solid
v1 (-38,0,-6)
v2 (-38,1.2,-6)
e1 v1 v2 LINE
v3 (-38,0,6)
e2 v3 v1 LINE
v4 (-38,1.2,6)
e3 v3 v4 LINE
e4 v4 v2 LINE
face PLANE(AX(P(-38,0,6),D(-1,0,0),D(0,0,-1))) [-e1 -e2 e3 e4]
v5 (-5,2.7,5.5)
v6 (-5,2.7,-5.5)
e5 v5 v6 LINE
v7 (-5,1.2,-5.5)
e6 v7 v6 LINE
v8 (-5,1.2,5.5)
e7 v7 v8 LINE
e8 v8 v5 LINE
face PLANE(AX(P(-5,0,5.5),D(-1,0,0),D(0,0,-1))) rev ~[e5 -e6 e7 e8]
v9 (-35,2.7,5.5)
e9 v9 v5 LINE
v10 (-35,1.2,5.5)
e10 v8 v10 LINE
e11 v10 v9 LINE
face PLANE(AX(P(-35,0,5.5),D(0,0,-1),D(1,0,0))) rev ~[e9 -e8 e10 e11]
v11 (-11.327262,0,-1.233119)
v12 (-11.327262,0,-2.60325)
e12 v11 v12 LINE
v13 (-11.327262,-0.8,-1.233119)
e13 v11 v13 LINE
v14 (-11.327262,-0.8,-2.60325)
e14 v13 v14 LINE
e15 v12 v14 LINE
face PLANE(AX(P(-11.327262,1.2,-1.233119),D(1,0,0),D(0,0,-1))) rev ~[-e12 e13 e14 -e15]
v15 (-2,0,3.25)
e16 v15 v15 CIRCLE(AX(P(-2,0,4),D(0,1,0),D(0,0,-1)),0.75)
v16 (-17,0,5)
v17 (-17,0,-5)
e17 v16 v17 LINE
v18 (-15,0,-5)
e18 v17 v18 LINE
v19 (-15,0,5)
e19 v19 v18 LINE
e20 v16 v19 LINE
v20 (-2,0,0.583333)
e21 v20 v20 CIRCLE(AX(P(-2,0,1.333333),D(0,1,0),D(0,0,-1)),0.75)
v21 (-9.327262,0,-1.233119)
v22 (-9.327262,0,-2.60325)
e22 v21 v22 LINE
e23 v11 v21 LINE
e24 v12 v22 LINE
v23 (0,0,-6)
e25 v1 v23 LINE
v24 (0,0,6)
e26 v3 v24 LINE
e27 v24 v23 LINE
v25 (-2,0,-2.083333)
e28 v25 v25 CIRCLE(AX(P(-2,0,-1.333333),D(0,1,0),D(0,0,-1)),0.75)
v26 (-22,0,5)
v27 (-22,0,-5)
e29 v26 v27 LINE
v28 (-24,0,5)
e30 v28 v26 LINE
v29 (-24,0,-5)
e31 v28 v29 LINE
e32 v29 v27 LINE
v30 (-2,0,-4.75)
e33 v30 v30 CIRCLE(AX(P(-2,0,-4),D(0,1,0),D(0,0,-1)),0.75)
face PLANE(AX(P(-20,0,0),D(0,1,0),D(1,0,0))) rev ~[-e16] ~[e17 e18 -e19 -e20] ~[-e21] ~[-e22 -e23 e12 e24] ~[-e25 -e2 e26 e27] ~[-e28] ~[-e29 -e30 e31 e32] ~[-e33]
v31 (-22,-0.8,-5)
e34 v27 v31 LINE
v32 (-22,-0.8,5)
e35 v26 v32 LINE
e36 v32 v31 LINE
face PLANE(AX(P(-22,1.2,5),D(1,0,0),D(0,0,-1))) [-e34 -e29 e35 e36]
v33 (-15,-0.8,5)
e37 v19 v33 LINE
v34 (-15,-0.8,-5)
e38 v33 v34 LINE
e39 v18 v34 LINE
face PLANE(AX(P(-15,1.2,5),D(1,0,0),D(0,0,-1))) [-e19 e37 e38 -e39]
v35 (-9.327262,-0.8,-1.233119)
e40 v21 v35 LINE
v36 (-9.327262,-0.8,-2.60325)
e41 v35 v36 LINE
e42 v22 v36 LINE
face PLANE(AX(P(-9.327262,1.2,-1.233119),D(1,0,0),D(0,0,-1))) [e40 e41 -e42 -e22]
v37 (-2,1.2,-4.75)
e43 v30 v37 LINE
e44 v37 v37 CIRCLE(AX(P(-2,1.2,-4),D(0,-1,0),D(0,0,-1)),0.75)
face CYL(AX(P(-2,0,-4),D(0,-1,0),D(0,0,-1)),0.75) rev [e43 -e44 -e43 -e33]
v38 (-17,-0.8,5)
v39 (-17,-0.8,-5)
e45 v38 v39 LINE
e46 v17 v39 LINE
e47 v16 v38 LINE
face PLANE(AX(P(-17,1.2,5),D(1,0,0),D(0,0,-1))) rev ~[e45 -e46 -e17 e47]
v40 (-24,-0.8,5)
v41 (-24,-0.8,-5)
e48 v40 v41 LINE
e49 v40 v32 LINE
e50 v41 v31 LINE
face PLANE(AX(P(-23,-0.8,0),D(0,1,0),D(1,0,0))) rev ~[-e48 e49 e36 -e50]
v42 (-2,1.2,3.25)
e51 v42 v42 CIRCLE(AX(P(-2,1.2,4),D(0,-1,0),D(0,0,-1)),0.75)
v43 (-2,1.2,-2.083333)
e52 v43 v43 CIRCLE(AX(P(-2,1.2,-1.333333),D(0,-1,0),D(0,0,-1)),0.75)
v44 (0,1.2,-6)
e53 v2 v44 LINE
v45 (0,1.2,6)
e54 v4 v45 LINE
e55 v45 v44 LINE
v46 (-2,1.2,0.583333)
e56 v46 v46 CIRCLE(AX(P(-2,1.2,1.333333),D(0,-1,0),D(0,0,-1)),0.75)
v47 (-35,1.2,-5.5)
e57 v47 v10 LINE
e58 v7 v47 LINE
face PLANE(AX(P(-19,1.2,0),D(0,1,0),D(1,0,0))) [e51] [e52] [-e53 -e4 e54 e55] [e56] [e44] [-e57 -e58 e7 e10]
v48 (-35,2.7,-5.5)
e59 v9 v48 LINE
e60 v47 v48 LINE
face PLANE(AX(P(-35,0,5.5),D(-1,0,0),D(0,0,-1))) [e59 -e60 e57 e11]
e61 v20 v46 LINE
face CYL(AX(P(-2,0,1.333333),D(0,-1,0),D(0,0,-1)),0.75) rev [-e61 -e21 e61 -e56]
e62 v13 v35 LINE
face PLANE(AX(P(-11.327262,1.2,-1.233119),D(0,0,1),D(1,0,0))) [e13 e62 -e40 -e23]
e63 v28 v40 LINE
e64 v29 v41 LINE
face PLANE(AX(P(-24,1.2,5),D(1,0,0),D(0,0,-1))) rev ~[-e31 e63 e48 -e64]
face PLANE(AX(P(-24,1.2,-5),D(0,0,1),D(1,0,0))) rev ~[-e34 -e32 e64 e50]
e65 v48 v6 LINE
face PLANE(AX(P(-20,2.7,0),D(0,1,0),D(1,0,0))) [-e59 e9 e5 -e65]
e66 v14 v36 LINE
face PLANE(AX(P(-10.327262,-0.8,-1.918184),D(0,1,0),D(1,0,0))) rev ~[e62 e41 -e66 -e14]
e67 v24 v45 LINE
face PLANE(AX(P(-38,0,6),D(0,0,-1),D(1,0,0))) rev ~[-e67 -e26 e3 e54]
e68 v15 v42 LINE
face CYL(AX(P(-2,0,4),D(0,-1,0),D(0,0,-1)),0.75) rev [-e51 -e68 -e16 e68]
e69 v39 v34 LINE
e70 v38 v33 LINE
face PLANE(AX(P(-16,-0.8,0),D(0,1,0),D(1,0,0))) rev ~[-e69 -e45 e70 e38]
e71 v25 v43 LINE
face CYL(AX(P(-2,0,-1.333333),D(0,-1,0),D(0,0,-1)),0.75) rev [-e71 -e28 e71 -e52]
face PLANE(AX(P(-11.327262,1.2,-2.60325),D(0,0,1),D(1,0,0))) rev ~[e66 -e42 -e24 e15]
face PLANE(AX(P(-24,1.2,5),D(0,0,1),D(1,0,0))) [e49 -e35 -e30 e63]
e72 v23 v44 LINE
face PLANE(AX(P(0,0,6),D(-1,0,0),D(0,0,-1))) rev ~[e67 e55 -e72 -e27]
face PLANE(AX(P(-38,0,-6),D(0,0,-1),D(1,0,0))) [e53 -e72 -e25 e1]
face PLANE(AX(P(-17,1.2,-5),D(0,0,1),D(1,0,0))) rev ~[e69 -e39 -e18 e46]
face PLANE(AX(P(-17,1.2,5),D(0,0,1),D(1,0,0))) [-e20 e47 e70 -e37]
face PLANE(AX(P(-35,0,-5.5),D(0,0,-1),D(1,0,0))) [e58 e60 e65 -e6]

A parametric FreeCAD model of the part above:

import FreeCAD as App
import Part
import Sketcher

V = App.Vector

doc = App.newDocument("Part")
body = doc.addObject("PartDesign::Body", "Body")

# Sketch on XZ plane
sketch1 = doc.addObject("Sketcher::SketchObject", "Sketch")
body.addObject(sketch1)
sketch1.AttachmentSupport = (doc.XZ_Plane, [""])
sketch1.MapMode = "FlatFace"
sketch1.addGeometry([
    Part.LineSegment(V(-38, -6, 0), V(-38, 6, 0)),
    Part.LineSegment(V(-38, 6, 0), V(0, 6, 0)),
    Part.LineSegment(V(0, 6, 0), V(0, -6, 0)),
    Part.LineSegment(V(0, -6, 0), V(-38, -6, 0)),
], False)
sketch1.addConstraint([
    Sketcher.Constraint("Coincident", 0, 2, 1, 1),
    Sketcher.Constraint("Coincident", 1, 2, 2, 1),
    Sketcher.Constraint("Coincident", 2, 2, 3, 1),
    Sketcher.Constraint("Coincident", 3, 2, 0, 1),
    Sketcher.Constraint("Vertical", 0),
    Sketcher.Constraint("Horizontal", 1),
    Sketcher.Constraint("Vertical", 2),
    Sketcher.Constraint("Horizontal", 3),
    Sketcher.Constraint("Symmetric", 1, 2, 2, 2, -1, 1),
    Sketcher.Constraint("DistanceX", 1, 1, 1, 2, 38.0),
    Sketcher.Constraint("DistanceY", 0, 1, 0, 2, 12.0),
])
pad1 = doc.addObject("PartDesign::Pad", "Pad")
body.addObject(pad1)
pad1.Profile = sketch1
pad1.Length = 1.2
pad1.Reversed = True

# Sketch on XZ plane
sketch2 = doc.addObject("Sketcher::SketchObject", "Sketch001")
body.addObject(sketch2)
sketch2.AttachmentSupport = (doc.XZ_Plane, [""])
sketch2.MapMode = "FlatFace"
sketch2.addGeometry([
    Part.LineSegment(V(-35, -6, 0), V(-35, 6, 0)),
    Part.LineSegment(V(-35, 6, 0), V(-5, 6, 0)),
    Part.LineSegment(V(-5, 6, 0), V(-5, -6, 0)),
    Part.LineSegment(V(-5, -6, 0), V(-35, -6, 0)),
], False)
sketch2.addConstraint([
    Sketcher.Constraint("Coincident", 0, 2, 1, 1),
    Sketcher.Constraint("Coincident", 1, 2, 2, 1),
    Sketcher.Constraint("Coincident", 2, 2, 3, 1),
    Sketcher.Constraint("Coincident", 3, 2, 0, 1),
    Sketcher.Constraint("Vertical", 0),
    Sketcher.Constraint("Horizontal", 1),
    Sketcher.Constraint("Vertical", 2),
    Sketcher.Constraint("Horizontal", 3),
    Sketcher.Constraint("DistanceX", 1, 1, 1, 2, 30.0),
    Sketcher.Constraint("DistanceY", 0, 1, 0, 2, 11.0),
    Sketcher.Constraint("DistanceX", 0, 2, -1, 1, 35.0),
    Sketcher.Constraint("DistanceY", -1, 1, 0, 2, 5.5),
])
pad2 = doc.addObject("PartDesign::Pad", "Pad001")
body.addObject(pad2)
pad2.Profile = sketch2
pad2.Length = 2.7
pad2.Reversed = True

# Sketch on XZ plane
sketch3 = doc.addObject("Sketcher::SketchObject", "Sketch002")
body.addObject(sketch3)
sketch3.AttachmentSupport = (doc.XZ_Plane, [""])
sketch3.MapMode = "FlatFace"
sketch3.addGeometry([
    Part.Circle(V(-2, -4, 0), V(0, 0, 1), 0.8),
    Part.Circle(V(-2, -1.3, 0), V(0, 0, 1), 0.8),
    Part.Circle(V(-2, 1.3, 0), V(0, 0, 1), 0.8),
    Part.Circle(V(-2, 4, 0), V(0, 0, 1), 0.8),
], False)
sketch3.addConstraint([
    Sketcher.Constraint("Equal", 0, 1),
    Sketcher.Constraint("Equal", 1, 2),
    Sketcher.Constraint("Equal", 2, 3),
    Sketcher.Constraint("Symmetric", 1, 3, 2, 3, -1),
    Sketcher.Constraint("Symmetric", 0, 3, 3, 3, -1),
    Sketcher.Constraint("Vertical", 0, 3, 1, 3),
    Sketcher.Constraint("Diameter", 0, 1.5),
    Sketcher.Constraint("DistanceX", 0, 3, -1, 1, 2.0),
    Sketcher.Constraint("DistanceY", 0, 3, -1, 1, 4.0),
    Sketcher.Constraint("DistanceY", 1, 3, -1, 1, 1.333333),
])
pocket1 = doc.addObject("PartDesign::Pocket", "Pocket")
body.addObject(pocket1)
pocket1.Profile = sketch3
pocket1.Type = "ThroughAll"

# Sketch on XZ plane
sketch4 = doc.addObject("Sketcher::SketchObject", "Sketch003")
body.addObject(sketch4)
sketch4.AttachmentSupport = (doc.XZ_Plane, [""])
sketch4.MapMode = "FlatFace"
sketch4.AttachmentOffset = App.Placement(V(0, 0, -1.2), App.Rotation())
sketch4.addGeometry([
    Part.LineSegment(V(-24, -5, 0), V(-24, 5, 0)),  # 0
    Part.LineSegment(V(-24, 5, 0), V(-22, 5, 0)),  # 1
    Part.LineSegment(V(-22, 5, 0), V(-22, -5, 0)),  # 2
    Part.LineSegment(V(-22, -5, 0), V(-24, -5, 0)),  # 3
    Part.LineSegment(V(-17, -5, 0), V(-17, 5, 0)),  # 4
    Part.LineSegment(V(-17, 5, 0), V(-15, 5, 0)),  # 5
    Part.LineSegment(V(-15, 5, 0), V(-15, -5, 0)),  # 6
    Part.LineSegment(V(-15, -5, 0), V(-17, -5, 0)),  # 7
    Part.LineSegment(V(-11.3, -2.6, 0), V(-11.3, -1.2, 0)),  # 8
    Part.LineSegment(V(-11.3, -1.2, 0), V(-9.3, -1.2, 0)),  # 9
    Part.LineSegment(V(-9.3, -1.2, 0), V(-9.3, -2.6, 0)),  # 10
    Part.LineSegment(V(-9.3, -2.6, 0), V(-11.3, -2.6, 0)),  # 11
], False)
sketch4.addConstraint([
    Sketcher.Constraint("Coincident", 0, 2, 1, 1),
    Sketcher.Constraint("Coincident", 1, 2, 2, 1),
    Sketcher.Constraint("Coincident", 2, 2, 3, 1),
    Sketcher.Constraint("Coincident", 3, 2, 0, 1),
    Sketcher.Constraint("Coincident", 4, 2, 5, 1),
    Sketcher.Constraint("Coincident", 5, 2, 6, 1),
    Sketcher.Constraint("Coincident", 6, 2, 7, 1),
    Sketcher.Constraint("Coincident", 7, 2, 4, 1),
    Sketcher.Constraint("Coincident", 8, 2, 9, 1),
    Sketcher.Constraint("Coincident", 9, 2, 10, 1),
    Sketcher.Constraint("Coincident", 10, 2, 11, 1),
    Sketcher.Constraint("Coincident", 11, 2, 8, 1),
    Sketcher.Constraint("Vertical", 0),
    Sketcher.Constraint("Horizontal", 1),
    Sketcher.Constraint("Vertical", 2),
    Sketcher.Constraint("Horizontal", 3),
    Sketcher.Constraint("Vertical", 4),
    Sketcher.Constraint("Horizontal", 5),
    Sketcher.Constraint("Vertical", 6),
    Sketcher.Constraint("Horizontal", 7),
    Sketcher.Constraint("Vertical", 8),
    Sketcher.Constraint("Horizontal", 9),
    Sketcher.Constraint("Vertical", 10),
    Sketcher.Constraint("Horizontal", 11),
    Sketcher.Constraint("Horizontal", 1, 2, 4, 2),
    Sketcher.Constraint("Horizontal", 3, 2, 6, 2),
    Sketcher.Constraint("Equal", 3, 5),
    Sketcher.Constraint("Equal", 7, 9),
    Sketcher.Constraint("DistanceX", 1, 1, 1, 2, 2.0),
    Sketcher.Constraint("DistanceY", 0, 1, 0, 2, 10.0),
    Sketcher.Constraint("DistanceX", 0, 2, -1, 1, 24.0),
    Sketcher.Constraint("DistanceY", -1, 1, 0, 2, 5.0),
    Sketcher.Constraint("DistanceX", 4, 2, -1, 1, 17.0),
    Sketcher.Constraint("DistanceY", 8, 1, 8, 2, 1.370132),
    Sketcher.Constraint("DistanceY", 8, 2, -1, 1, 1.233119),
    Sketcher.Constraint("DistanceX", 8, 2, -1, 1, 11.327262),
])
pad3 = doc.addObject("PartDesign::Pad", "Pad002")
body.addObject(pad3)
pad3.Profile = sketch4
pad3.Length = 2

doc.recompute()
